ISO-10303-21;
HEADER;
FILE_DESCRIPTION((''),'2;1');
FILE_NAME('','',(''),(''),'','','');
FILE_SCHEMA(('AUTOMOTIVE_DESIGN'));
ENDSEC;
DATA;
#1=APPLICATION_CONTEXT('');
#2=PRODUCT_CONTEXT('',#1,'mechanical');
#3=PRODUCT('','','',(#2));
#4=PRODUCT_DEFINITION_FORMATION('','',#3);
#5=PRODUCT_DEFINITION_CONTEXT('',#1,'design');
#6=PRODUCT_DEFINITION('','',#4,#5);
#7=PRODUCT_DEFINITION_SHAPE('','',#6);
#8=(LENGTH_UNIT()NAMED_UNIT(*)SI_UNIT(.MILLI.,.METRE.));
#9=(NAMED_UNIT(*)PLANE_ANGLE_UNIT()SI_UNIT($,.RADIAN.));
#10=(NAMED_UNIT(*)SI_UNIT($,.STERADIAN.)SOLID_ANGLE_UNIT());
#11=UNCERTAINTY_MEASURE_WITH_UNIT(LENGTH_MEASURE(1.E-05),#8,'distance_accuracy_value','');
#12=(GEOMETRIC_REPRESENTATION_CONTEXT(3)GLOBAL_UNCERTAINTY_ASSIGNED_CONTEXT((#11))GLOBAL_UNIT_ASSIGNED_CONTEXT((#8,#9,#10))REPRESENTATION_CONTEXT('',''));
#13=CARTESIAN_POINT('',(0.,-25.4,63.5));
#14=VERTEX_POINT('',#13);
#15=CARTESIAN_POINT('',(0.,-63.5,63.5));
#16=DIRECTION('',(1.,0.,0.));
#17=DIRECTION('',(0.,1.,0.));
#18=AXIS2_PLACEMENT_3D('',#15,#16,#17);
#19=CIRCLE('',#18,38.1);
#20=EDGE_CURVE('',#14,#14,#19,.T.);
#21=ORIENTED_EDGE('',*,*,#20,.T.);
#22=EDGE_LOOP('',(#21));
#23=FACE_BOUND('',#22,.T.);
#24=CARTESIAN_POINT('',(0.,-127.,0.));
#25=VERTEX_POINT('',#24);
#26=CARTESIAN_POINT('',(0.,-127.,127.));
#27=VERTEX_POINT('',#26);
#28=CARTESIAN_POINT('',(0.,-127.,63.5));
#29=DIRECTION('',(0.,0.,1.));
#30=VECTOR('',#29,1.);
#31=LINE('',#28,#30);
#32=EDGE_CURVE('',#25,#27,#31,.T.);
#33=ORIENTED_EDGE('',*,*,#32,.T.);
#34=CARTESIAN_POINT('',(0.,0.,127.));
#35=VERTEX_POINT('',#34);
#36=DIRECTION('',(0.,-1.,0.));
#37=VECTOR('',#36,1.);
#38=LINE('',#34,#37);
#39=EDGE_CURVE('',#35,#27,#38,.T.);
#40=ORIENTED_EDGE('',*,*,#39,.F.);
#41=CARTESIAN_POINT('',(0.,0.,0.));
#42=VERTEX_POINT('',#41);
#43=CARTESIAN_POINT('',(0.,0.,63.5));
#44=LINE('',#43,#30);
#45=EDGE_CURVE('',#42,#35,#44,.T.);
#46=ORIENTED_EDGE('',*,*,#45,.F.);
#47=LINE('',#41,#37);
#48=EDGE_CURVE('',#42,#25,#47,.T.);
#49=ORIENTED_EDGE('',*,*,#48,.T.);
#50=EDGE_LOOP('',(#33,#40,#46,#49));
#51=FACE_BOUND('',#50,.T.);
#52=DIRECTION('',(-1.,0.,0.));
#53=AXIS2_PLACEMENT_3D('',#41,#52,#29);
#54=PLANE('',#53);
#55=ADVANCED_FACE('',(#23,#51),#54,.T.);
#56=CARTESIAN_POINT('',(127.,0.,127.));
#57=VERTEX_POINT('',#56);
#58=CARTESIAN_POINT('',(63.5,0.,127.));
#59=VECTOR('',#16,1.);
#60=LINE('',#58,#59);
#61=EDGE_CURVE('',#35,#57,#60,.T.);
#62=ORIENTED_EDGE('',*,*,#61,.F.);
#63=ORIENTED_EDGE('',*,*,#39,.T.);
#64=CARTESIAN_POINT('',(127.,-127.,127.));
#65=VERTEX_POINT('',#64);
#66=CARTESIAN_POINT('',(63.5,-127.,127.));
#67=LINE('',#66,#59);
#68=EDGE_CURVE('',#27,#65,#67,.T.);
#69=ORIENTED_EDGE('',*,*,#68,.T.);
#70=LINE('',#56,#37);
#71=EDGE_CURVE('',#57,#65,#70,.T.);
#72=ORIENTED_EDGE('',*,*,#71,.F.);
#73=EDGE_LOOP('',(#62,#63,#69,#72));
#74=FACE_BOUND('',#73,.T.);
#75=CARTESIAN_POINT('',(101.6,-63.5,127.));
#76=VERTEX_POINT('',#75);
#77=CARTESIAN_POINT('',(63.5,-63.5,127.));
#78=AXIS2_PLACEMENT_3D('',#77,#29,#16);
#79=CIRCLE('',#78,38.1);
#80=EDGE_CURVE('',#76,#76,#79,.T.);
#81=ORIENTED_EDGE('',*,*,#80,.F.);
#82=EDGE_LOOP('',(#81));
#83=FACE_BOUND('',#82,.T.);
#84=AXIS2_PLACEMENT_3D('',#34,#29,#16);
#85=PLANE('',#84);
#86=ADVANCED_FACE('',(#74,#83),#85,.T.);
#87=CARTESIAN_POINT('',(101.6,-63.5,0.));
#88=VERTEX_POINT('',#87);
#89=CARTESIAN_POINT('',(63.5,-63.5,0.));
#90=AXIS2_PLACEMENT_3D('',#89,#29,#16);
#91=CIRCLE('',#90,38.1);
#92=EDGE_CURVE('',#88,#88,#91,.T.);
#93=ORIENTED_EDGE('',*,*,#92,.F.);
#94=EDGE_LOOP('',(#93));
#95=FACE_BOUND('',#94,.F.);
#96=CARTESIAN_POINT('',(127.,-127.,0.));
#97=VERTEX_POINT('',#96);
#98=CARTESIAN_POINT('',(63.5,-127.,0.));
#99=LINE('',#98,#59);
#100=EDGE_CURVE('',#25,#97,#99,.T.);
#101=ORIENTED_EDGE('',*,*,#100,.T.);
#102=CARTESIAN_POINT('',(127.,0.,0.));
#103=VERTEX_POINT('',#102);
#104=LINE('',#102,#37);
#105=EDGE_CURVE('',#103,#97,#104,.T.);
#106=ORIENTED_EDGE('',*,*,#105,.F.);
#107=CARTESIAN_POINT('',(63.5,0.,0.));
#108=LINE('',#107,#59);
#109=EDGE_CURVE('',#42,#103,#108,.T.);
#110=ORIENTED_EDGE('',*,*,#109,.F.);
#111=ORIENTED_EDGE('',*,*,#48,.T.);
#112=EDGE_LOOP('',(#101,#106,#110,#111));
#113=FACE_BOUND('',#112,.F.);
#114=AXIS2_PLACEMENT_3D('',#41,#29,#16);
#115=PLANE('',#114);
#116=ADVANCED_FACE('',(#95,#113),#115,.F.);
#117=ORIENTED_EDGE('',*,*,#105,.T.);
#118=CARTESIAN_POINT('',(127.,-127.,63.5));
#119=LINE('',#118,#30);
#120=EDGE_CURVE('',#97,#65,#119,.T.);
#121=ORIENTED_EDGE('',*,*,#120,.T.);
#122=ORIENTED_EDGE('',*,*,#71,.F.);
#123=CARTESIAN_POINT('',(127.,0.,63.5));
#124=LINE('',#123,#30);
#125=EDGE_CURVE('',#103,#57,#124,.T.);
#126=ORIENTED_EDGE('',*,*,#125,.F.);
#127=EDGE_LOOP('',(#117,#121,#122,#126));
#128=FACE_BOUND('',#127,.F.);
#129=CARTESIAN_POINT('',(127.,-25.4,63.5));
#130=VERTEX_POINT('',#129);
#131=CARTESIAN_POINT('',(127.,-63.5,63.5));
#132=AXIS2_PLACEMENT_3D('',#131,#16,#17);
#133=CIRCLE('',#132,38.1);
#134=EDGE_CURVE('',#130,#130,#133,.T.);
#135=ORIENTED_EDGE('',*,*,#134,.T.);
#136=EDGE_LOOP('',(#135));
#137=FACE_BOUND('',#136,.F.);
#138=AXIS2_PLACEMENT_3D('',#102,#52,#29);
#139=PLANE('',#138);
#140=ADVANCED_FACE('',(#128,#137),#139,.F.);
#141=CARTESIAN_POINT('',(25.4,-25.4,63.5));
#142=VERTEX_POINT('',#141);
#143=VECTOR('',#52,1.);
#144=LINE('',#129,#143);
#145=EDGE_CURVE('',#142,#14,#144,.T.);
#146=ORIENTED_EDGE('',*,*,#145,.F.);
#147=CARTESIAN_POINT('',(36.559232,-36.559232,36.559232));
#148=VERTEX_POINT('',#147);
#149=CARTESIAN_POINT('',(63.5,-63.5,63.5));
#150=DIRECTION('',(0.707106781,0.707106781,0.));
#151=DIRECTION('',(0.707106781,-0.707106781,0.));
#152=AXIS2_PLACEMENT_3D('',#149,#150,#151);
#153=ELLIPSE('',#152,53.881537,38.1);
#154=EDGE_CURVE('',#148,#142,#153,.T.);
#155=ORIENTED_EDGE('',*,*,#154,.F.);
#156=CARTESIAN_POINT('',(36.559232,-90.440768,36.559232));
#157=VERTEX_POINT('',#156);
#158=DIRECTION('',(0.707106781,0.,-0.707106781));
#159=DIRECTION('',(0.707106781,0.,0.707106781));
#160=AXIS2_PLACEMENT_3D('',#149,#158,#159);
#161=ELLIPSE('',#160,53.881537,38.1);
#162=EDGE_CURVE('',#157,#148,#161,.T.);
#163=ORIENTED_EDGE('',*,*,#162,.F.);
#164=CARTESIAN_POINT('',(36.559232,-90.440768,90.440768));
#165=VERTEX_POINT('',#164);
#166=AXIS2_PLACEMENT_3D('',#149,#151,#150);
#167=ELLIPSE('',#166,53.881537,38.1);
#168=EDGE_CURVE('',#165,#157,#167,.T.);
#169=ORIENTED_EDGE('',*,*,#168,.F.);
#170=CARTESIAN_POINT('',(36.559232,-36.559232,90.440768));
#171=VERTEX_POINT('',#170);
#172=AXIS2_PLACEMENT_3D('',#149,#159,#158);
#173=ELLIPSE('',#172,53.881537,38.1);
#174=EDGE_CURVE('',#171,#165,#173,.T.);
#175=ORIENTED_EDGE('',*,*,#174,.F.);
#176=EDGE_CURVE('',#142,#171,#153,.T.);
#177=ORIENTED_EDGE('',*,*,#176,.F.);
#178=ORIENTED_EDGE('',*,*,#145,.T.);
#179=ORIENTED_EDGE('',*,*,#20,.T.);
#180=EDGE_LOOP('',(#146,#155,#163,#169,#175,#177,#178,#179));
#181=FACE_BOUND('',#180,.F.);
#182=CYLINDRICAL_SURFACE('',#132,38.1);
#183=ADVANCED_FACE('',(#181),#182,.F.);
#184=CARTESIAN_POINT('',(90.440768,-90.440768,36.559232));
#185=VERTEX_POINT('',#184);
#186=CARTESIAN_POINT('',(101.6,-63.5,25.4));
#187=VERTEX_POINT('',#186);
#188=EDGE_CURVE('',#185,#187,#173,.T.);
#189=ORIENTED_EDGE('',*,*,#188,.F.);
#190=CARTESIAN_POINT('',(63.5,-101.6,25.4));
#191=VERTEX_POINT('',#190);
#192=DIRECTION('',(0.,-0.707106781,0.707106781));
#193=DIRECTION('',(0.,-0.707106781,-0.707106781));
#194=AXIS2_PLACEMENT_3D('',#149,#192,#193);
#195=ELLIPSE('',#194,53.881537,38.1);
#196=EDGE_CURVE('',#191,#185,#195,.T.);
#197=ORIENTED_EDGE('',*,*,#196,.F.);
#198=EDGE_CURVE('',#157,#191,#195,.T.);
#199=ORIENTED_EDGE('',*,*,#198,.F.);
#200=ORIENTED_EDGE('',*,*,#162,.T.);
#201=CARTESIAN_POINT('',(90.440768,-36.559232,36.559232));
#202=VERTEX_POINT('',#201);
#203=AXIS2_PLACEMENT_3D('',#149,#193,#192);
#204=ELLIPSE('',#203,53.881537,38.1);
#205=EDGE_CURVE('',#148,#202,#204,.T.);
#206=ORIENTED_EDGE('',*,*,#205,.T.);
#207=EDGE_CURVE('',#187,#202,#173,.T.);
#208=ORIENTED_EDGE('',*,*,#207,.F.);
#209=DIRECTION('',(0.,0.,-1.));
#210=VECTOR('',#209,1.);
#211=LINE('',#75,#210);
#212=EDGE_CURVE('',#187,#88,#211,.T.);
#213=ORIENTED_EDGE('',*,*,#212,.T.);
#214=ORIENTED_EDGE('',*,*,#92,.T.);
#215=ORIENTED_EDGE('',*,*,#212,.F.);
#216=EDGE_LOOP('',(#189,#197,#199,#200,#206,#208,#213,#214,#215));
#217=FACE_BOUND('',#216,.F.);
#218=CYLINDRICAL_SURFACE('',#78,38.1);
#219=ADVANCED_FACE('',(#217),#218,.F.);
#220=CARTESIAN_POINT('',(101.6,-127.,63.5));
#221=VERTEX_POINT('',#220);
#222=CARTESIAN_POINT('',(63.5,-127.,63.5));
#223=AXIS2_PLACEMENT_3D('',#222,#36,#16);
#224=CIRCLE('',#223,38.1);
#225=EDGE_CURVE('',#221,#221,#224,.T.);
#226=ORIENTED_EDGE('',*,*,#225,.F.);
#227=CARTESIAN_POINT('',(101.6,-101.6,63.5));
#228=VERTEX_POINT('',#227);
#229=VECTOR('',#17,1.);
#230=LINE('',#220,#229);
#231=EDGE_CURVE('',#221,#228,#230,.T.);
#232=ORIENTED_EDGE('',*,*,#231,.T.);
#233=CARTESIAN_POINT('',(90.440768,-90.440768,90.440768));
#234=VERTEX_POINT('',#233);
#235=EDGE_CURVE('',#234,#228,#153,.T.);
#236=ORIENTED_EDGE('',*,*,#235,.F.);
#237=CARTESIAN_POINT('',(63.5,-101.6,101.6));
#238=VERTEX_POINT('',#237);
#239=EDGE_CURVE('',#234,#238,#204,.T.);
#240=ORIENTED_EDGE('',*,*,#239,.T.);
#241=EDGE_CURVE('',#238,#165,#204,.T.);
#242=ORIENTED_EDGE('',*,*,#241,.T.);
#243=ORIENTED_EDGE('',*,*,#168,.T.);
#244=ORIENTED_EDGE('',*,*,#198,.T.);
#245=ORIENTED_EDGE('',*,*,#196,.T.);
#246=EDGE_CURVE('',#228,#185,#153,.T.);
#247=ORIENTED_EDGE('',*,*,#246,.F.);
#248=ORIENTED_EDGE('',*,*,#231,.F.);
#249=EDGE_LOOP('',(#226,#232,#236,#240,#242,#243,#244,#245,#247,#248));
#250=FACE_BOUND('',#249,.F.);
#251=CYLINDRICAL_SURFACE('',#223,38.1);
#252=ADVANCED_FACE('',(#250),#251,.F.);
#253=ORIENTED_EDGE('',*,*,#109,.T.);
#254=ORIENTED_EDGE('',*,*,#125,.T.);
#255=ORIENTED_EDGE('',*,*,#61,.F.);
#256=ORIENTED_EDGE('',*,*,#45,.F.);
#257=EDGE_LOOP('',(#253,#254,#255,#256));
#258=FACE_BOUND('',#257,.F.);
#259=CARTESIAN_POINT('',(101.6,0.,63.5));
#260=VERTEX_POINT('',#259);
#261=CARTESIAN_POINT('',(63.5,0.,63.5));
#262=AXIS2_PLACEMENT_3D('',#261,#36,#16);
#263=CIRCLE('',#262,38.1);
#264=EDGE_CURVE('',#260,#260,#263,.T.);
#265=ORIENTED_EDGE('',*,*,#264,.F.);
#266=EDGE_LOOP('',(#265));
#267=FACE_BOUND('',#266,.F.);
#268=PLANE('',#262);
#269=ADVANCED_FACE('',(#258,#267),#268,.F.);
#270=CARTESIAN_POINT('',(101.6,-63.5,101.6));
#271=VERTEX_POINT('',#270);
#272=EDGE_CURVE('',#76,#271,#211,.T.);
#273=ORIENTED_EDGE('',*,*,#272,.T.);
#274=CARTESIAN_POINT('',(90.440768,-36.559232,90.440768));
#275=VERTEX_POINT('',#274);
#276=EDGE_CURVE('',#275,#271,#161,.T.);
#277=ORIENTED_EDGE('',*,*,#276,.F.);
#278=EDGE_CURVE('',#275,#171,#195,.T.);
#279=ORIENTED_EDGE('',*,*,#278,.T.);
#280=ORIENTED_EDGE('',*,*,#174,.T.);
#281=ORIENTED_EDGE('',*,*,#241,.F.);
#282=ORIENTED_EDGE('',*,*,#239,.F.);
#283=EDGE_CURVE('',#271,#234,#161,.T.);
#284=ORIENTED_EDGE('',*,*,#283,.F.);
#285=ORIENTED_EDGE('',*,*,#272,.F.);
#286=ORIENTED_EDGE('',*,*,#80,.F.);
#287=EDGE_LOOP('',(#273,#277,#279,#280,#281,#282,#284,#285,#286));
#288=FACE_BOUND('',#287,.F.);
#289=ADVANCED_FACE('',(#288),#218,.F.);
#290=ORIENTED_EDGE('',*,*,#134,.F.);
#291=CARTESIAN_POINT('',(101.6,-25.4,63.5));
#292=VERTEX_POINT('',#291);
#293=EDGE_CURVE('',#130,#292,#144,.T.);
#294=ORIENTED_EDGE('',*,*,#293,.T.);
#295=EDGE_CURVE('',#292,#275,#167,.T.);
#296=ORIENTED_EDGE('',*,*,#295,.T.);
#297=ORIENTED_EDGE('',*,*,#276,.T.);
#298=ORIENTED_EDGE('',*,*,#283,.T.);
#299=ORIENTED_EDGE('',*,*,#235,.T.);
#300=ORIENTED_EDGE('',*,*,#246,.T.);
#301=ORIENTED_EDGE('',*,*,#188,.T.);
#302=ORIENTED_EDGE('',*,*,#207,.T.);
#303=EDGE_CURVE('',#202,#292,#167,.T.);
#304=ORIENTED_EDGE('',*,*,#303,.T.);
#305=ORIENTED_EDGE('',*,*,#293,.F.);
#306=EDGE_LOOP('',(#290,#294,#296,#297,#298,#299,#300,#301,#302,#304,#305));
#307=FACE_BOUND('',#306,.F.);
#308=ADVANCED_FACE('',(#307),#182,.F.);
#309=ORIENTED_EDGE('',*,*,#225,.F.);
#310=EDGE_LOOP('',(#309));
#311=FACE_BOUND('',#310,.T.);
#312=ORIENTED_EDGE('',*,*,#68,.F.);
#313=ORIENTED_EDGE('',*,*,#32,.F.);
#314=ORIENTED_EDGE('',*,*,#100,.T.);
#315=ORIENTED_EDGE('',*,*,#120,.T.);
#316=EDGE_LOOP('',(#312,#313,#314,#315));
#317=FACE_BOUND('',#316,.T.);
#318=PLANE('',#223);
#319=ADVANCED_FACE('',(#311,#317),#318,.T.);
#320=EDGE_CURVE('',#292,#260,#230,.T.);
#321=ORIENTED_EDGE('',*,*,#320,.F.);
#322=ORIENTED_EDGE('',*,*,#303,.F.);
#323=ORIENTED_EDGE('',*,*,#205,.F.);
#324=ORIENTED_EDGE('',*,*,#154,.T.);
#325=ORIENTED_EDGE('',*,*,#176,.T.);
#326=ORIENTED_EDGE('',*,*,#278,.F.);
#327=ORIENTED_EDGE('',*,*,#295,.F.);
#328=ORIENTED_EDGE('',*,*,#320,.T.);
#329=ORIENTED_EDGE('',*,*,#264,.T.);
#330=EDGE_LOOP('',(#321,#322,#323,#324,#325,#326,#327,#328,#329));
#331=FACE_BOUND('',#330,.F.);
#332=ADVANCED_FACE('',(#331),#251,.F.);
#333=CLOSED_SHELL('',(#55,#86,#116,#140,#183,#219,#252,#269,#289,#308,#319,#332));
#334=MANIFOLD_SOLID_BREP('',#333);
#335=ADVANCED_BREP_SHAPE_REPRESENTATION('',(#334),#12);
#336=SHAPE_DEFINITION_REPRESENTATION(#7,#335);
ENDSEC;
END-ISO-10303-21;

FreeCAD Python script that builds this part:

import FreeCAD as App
import Part
import Sketcher
from FreeCAD import Vector
Q = App.Units.Quantity

doc = App.newDocument("Part")
body = doc.addObject("PartDesign::Body", "Body")

# Sketch on XZ plane
sketch1 = body.newObject("Sketcher::SketchObject", "Sketch")
sketch1.AttachmentSupport = (doc.getObject("XZ_Plane"), [""])
sketch1.MapMode = "FlatFace"
sketch1.addGeometry([
    Part.LineSegment(Vector(0, 127, 0), Vector(0, 0, 0)),
    Part.LineSegment(Vector(0, 0, 0), Vector(127, 0, 0)),
    Part.LineSegment(Vector(127, 0, 0), Vector(127, 127, 0)),
    Part.LineSegment(Vector(127, 127, 0), Vector(0, 127, 0)),
], False)
sketch1.addConstraint([
    Sketcher.Constraint("Coincident", 0, 2, 1, 1),
    Sketcher.Constraint("Coincident", 1, 2, 2, 1),
    Sketcher.Constraint("Coincident", 2, 2, 3, 1),
    Sketcher.Constraint("Coincident", 3, 2, 0, 1),
    Sketcher.Constraint("Vertical", 0),
    Sketcher.Constraint("Horizontal", 1),
    Sketcher.Constraint("Vertical", 2),
    Sketcher.Constraint("Horizontal", 3),
    Sketcher.Constraint("Coincident", 0, 2, -1, 1),
    Sketcher.Constraint("Equal", 3, 0),
    Sketcher.Constraint("DistanceX", 1, 1, 1, 2, Q("5 in")),
])
pad1 = body.newObject("PartDesign::Pad", "Pad")
pad1.Profile = sketch1
pad1.Length = Q("5 in")

# Sketch on YZ plane
sketch2 = body.newObject("Sketcher::SketchObject", "Sketch001")
sketch2.AttachmentSupport = (doc.getObject("YZ_Plane"), [""])
sketch2.MapMode = "FlatFace"
sketch2.AttachmentOffset = App.Placement(Vector(0, 0, 5 * 25.4), App.Rotation())
sketch2.addGeometry(Part.Circle(Vector(-64, 64, 0), Vector(0, 0, 1), 38), False)
sketch2.addConstraint([
    Sketcher.Constraint("Diameter", 0, Q("3 in")),
    Sketcher.Constraint("DistanceX", 0, 3, -1, 1, Q("2.5 in")),
    Sketcher.Constraint("DistanceY", -1, 1, 0, 3, Q("2.5 in")),
])
pocket1 = body.newObject("PartDesign::Pocket", "Pocket")
pocket1.Profile = sketch2
pocket1.Length = Q("5 in")

# Sketch on XZ plane
sketch3 = body.newObject("Sketcher::SketchObject", "Sketch002")
sketch3.AttachmentSupport = (doc.getObject("XZ_Plane"), [""])
sketch3.MapMode = "FlatFace"
sketch3.AttachmentOffset = App.Placement(Vector(0, 0, 5 * 25.4), App.Rotation())
sketch3.addGeometry(Part.Circle(Vector(64, 64, 0), Vector(0, 0, 1), 38), False)
sketch3.addConstraint([
    Sketcher.Constraint("Diameter", 0, Q("3 in")),
    Sketcher.Constraint("DistanceX", -1, 1, 0, 3, Q("2.5 in")),
    Sketcher.Constraint("DistanceY", -1, 1, 0, 3, Q("2.5 in")),
])
pocket2 = body.newObject("PartDesign::Pocket", "Pocket001")
pocket2.Profile = sketch3
pocket2.Length = Q("5 in")

# Sketch on XY plane
sketch4 = body.newObject("Sketcher::SketchObject", "Sketch003")
sketch4.AttachmentSupport = (doc.getObject("XY_Plane"), [""])
sketch4.MapMode = "FlatFace"
sketch4.AttachmentOffset = App.Placement(Vector(0, 0, 5 * 25.4), App.Rotation())
sketch4.addGeometry(Part.Circle(Vector(64, -64, 0), Vector(0, 0, 1), 38), False)
sketch4.addConstraint([
    Sketcher.Constraint("Diameter", 0, Q("3 in")),
    Sketcher.Constraint("DistanceX", -1, 1, 0, 3, Q("2.5 in")),
    Sketcher.Constraint("DistanceY", 0, 3, -1, 1, Q("2.5 in")),
])
pocket3 = body.newObject("PartDesign::Pocket", "Pocket002")
pocket3.Profile = sketch4
pocket3.Length = Q("5 in")

doc.recompute()
